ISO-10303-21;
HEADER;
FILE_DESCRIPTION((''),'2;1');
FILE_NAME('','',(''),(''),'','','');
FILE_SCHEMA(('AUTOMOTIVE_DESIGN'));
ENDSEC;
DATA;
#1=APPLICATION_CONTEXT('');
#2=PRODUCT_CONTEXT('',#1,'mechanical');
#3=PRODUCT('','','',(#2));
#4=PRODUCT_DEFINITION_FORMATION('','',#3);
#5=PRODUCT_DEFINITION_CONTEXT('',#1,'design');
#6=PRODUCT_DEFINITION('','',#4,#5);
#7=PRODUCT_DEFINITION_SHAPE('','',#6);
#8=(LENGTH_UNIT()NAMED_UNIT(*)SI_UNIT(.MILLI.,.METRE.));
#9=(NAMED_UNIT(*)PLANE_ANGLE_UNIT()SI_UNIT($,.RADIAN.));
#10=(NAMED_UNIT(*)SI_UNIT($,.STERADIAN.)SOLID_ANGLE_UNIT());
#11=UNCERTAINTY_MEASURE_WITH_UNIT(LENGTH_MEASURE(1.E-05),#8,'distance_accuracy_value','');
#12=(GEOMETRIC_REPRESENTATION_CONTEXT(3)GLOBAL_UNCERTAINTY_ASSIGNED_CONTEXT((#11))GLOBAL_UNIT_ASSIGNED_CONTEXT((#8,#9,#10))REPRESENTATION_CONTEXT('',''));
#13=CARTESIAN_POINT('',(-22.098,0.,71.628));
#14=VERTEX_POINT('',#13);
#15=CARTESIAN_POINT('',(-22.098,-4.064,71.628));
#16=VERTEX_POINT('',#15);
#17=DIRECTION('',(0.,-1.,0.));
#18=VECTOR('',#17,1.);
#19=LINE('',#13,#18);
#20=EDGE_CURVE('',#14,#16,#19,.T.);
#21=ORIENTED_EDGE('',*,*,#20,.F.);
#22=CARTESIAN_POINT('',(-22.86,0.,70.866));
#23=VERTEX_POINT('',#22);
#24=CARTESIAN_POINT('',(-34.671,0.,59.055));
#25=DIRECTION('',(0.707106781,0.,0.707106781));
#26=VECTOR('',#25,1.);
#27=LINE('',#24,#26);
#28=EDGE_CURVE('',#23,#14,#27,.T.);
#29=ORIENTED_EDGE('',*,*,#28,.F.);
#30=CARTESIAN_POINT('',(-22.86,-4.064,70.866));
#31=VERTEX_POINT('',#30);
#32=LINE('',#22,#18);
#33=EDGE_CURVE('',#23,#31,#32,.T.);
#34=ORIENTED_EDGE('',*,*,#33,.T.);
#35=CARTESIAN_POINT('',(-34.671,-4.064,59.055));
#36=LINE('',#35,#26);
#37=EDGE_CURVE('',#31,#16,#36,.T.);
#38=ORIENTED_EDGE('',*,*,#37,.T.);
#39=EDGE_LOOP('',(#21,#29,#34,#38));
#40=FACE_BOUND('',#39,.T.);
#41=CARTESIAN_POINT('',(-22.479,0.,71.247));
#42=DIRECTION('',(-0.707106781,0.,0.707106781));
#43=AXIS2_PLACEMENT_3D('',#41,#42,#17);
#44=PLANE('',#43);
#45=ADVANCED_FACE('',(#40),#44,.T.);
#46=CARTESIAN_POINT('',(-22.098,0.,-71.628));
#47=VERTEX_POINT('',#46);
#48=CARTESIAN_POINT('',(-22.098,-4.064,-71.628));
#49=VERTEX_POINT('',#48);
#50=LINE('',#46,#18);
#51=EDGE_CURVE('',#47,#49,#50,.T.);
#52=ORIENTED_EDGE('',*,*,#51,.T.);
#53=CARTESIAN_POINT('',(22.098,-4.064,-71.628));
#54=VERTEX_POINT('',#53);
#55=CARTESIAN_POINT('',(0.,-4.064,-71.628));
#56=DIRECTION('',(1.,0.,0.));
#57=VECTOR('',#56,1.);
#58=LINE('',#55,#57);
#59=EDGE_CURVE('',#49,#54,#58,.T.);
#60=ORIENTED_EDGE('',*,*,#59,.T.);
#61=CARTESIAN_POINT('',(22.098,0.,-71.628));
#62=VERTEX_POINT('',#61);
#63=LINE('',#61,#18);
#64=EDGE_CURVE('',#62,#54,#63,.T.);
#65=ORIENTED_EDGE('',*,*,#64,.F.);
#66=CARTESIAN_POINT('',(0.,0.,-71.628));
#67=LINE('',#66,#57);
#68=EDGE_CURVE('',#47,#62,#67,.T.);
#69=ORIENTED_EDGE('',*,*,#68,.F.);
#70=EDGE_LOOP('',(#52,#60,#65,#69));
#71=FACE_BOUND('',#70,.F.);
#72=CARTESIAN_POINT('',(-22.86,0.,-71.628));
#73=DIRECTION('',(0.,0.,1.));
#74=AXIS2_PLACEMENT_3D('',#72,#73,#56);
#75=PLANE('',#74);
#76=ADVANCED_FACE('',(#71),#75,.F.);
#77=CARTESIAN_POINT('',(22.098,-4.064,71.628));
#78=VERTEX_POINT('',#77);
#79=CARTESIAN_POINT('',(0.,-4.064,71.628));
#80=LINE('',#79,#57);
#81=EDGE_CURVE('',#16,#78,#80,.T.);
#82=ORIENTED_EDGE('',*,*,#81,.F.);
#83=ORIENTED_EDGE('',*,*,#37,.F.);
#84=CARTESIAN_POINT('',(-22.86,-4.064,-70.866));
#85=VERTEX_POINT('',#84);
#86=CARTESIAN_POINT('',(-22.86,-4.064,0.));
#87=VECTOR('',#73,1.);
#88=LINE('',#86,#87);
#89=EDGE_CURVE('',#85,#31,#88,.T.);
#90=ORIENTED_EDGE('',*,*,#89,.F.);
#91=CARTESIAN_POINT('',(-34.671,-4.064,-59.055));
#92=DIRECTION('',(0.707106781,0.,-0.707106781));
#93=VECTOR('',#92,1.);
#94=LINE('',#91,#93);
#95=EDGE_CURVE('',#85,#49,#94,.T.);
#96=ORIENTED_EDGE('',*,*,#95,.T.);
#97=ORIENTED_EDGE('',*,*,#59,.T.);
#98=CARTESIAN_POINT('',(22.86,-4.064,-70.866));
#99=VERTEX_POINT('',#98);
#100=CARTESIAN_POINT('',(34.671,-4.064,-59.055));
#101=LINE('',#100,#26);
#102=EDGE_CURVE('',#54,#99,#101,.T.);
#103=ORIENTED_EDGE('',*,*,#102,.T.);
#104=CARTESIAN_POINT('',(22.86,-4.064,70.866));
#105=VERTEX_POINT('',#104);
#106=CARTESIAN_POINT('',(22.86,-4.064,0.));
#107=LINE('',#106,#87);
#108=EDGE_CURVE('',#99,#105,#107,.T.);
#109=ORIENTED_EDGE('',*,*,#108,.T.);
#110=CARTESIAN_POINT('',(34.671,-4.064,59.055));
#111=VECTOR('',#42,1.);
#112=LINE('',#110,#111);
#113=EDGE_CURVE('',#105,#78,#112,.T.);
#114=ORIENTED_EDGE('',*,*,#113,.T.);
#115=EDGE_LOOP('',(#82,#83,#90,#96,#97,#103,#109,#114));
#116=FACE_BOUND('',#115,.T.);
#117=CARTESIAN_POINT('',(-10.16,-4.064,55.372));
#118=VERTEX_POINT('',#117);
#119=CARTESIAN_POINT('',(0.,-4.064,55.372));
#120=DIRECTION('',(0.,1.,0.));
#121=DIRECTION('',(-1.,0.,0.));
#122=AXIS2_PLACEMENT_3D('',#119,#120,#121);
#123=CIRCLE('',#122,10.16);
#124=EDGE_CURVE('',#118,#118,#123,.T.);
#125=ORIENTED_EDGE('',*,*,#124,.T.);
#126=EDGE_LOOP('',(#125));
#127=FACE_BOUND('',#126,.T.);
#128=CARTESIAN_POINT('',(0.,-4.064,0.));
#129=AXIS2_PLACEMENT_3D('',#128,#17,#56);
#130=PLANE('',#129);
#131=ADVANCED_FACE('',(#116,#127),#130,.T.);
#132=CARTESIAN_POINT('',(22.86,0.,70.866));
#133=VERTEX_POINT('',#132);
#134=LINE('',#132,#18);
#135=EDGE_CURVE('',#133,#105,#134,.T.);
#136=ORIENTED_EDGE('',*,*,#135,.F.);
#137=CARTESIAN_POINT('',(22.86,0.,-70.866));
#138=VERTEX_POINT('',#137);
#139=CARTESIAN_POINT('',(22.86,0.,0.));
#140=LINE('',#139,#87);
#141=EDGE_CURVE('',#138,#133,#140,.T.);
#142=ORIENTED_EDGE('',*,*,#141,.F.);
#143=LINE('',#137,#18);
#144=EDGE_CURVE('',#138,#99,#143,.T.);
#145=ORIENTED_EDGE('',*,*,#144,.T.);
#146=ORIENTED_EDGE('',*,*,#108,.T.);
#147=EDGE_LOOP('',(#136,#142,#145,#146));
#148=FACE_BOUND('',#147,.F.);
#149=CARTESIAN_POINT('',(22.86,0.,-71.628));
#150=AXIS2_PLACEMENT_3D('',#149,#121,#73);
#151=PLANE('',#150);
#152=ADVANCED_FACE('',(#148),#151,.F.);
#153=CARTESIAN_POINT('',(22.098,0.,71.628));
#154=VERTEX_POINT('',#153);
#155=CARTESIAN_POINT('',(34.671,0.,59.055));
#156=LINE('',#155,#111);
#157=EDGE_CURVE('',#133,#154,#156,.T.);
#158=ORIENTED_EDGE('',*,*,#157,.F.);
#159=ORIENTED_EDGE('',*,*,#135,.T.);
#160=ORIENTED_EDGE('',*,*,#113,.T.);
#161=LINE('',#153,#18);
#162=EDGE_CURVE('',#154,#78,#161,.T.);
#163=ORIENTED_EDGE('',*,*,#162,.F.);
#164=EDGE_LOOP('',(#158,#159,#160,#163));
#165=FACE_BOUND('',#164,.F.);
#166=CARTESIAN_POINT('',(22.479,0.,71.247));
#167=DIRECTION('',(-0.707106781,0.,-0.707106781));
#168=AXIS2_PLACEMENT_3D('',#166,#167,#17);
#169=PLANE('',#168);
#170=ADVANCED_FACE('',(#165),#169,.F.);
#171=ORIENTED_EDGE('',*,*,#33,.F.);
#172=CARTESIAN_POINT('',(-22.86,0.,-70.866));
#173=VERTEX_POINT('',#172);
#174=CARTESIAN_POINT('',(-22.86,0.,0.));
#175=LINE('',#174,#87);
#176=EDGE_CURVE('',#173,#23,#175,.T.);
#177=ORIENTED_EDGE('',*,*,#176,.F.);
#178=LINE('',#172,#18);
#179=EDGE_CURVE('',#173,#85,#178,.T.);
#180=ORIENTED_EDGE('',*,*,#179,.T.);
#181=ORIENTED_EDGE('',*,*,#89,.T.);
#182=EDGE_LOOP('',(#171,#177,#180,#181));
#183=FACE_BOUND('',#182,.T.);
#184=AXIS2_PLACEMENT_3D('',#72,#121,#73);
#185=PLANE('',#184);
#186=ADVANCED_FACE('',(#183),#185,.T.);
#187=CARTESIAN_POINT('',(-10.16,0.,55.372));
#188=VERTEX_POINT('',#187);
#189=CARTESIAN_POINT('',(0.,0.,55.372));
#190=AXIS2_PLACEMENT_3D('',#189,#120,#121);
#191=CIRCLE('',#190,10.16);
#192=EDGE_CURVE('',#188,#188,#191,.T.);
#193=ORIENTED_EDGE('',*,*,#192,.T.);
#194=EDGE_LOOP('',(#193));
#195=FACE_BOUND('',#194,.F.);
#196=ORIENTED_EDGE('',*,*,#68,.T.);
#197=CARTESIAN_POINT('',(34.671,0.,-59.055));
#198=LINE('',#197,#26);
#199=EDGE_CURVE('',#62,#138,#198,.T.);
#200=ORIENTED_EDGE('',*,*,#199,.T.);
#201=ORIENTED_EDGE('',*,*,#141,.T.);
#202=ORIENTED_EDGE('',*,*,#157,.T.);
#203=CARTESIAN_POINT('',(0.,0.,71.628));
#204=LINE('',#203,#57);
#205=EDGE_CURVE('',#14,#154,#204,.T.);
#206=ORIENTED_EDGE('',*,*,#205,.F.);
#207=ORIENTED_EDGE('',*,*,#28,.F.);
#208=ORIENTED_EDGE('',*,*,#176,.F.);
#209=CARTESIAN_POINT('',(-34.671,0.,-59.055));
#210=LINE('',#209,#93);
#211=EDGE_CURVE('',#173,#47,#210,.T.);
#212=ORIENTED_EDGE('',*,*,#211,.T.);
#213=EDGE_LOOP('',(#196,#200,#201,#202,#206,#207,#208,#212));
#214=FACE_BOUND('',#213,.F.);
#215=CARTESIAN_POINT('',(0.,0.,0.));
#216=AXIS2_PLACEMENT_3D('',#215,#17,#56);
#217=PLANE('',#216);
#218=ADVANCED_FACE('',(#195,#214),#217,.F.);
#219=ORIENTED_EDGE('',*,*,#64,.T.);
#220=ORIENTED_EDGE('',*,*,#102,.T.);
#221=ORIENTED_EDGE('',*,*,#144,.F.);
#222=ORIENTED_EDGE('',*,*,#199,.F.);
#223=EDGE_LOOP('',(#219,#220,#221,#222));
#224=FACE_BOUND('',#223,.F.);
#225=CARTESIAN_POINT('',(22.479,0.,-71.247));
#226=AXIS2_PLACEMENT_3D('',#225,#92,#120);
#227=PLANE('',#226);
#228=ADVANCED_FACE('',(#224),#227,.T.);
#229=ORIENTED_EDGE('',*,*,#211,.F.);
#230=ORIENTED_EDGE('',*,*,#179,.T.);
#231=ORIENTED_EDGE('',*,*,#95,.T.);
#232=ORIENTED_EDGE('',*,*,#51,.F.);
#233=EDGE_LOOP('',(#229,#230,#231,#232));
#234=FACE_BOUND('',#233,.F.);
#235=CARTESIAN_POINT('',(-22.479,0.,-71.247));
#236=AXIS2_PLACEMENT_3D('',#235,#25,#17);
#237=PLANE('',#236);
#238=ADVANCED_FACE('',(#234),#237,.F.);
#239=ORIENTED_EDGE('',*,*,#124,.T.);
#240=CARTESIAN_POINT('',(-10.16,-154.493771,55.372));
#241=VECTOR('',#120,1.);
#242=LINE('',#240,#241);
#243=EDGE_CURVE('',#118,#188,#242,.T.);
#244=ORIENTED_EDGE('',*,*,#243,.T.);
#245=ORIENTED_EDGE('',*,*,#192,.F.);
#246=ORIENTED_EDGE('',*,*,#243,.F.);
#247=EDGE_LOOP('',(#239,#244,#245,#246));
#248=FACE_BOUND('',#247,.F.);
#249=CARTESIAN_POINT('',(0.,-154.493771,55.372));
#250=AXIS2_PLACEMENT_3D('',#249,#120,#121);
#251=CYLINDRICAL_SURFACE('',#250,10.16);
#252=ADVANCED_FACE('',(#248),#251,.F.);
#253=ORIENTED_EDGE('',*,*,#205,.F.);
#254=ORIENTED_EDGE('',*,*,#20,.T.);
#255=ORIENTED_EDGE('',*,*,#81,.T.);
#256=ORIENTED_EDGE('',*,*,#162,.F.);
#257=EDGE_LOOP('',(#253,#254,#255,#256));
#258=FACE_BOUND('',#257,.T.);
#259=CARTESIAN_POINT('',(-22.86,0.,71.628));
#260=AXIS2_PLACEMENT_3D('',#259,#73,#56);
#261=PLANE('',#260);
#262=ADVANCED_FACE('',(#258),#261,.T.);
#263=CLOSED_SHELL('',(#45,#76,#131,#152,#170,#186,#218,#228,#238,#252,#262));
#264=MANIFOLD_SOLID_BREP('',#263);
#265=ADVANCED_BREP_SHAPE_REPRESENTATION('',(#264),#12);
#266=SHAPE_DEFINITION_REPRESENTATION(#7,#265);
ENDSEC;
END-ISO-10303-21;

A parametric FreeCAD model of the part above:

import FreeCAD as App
import Part
import Sketcher
from FreeCAD import Vector
Q = App.Units.Quantity


def edges_at(feature, points):
    """Names of the edges that pass closest to the given points."""
    edges = feature.Shape.Edges
    near = lambda p: min(range(len(edges)), key=lambda i: edges[i].distToShape(Part.Vertex(*p))[0])
    return sorted({f"Edge{near(p) + 1}" for p in points})

doc = App.newDocument("Part")
body = doc.addObject("PartDesign::Body", "Body")

# Sketch on XZ plane
sketch1 = body.newObject("Sketcher::SketchObject", "Sketch")
sketch1.AttachmentSupport = (doc.getObject("XZ_Plane"), [""])
sketch1.MapMode = "FlatFace"
sketch1.addGeometry(Part.LineSegment(Vector(-23, 72, 0), Vector(-23, -72, 0)), False)
sketch1.addGeometry(Part.LineSegment(Vector(-23, -72, 0), Vector(23, -72, 0)), False)
sketch1.addGeometry(Part.LineSegment(Vector(23, -72, 0), Vector(23, 72, 0)), False)
sketch1.addGeometry(Part.LineSegment(Vector(23, 72, 0), Vector(-23, 72, 0)), False)
sketch1.addConstraint(Sketcher.Constraint("Coincident", 0, 2, 1, 1))
sketch1.addConstraint(Sketcher.Constraint("Coincident", 1, 2, 2, 1))
sketch1.addConstraint(Sketcher.Constraint("Coincident", 2, 2, 3, 1))
sketch1.addConstraint(Sketcher.Constraint("Coincident", 3, 2, 0, 1))
sketch1.addConstraint(Sketcher.Constraint("Vertical", 0))
sketch1.addConstraint(Sketcher.Constraint("Horizontal", 1))
sketch1.addConstraint(Sketcher.Constraint("Vertical", 2))
sketch1.addConstraint(Sketcher.Constraint("Horizontal", 3))
sketch1.addConstraint(Sketcher.Constraint("Symmetric", 0, 2, 2, 2, -1, 1))
sketch1.addConstraint(Sketcher.Constraint("DistanceX", 1, 1, 1, 2, Q("1.8 in")))
sketch1.addConstraint(Sketcher.Constraint("DistanceY", 0, 2, 0, 1, Q("5.64 in")))
pad1 = body.newObject("PartDesign::Pad", "Pad")
pad1.Profile = sketch1
pad1.Length = Q("0.16 in")
doc.recompute()

chamfer = body.newObject("PartDesign::Chamfer", "Chamfer")
chamfer.Base = (pad1, edges_at(pad1, [
    (22.86, -2.032, 71.628),
    (-22.86, -2.032, 71.628),
    (-22.86, -2.032, -71.628),
    (22.86, -2.032, -71.628),
]))
chamfer.ChamferType = "Two distances"
chamfer.Size = Q("0.03 in")
chamfer.Size2 = Q("0.03 in")

# Sketch on XZ plane
sketch2 = body.newObject("Sketcher::SketchObject", "Sketch001")
sketch2.AttachmentSupport = (doc.getObject("XZ_Plane"), [""])
sketch2.MapMode = "FlatFace"
sketch2.AttachmentOffset = App.Placement(Vector(0, 0, 0.16 * 25.4), App.Rotation())
sketch2.addGeometry(Part.Circle(Vector(0, 55, 0), Vector(0, 0, 1), 10), False)
sketch2.addConstraint(Sketcher.Constraint("PointOnObject", 0, 3, -2))
sketch2.addConstraint(Sketcher.Constraint("Diameter", 0, Q("0.8 in")))
sketch2.addConstraint(Sketcher.Constraint("DistanceY", -1, 1, 0, 3, Q("2.18 in")))
doc.recompute()
hole = body.newObject("PartDesign::Hole", "Hole")
hole.Profile = sketch2
hole.ThreadType = "None"
hole.Diameter = Q("0.8 in")
hole.DepthType = "ThroughAll"

doc.recompute()
